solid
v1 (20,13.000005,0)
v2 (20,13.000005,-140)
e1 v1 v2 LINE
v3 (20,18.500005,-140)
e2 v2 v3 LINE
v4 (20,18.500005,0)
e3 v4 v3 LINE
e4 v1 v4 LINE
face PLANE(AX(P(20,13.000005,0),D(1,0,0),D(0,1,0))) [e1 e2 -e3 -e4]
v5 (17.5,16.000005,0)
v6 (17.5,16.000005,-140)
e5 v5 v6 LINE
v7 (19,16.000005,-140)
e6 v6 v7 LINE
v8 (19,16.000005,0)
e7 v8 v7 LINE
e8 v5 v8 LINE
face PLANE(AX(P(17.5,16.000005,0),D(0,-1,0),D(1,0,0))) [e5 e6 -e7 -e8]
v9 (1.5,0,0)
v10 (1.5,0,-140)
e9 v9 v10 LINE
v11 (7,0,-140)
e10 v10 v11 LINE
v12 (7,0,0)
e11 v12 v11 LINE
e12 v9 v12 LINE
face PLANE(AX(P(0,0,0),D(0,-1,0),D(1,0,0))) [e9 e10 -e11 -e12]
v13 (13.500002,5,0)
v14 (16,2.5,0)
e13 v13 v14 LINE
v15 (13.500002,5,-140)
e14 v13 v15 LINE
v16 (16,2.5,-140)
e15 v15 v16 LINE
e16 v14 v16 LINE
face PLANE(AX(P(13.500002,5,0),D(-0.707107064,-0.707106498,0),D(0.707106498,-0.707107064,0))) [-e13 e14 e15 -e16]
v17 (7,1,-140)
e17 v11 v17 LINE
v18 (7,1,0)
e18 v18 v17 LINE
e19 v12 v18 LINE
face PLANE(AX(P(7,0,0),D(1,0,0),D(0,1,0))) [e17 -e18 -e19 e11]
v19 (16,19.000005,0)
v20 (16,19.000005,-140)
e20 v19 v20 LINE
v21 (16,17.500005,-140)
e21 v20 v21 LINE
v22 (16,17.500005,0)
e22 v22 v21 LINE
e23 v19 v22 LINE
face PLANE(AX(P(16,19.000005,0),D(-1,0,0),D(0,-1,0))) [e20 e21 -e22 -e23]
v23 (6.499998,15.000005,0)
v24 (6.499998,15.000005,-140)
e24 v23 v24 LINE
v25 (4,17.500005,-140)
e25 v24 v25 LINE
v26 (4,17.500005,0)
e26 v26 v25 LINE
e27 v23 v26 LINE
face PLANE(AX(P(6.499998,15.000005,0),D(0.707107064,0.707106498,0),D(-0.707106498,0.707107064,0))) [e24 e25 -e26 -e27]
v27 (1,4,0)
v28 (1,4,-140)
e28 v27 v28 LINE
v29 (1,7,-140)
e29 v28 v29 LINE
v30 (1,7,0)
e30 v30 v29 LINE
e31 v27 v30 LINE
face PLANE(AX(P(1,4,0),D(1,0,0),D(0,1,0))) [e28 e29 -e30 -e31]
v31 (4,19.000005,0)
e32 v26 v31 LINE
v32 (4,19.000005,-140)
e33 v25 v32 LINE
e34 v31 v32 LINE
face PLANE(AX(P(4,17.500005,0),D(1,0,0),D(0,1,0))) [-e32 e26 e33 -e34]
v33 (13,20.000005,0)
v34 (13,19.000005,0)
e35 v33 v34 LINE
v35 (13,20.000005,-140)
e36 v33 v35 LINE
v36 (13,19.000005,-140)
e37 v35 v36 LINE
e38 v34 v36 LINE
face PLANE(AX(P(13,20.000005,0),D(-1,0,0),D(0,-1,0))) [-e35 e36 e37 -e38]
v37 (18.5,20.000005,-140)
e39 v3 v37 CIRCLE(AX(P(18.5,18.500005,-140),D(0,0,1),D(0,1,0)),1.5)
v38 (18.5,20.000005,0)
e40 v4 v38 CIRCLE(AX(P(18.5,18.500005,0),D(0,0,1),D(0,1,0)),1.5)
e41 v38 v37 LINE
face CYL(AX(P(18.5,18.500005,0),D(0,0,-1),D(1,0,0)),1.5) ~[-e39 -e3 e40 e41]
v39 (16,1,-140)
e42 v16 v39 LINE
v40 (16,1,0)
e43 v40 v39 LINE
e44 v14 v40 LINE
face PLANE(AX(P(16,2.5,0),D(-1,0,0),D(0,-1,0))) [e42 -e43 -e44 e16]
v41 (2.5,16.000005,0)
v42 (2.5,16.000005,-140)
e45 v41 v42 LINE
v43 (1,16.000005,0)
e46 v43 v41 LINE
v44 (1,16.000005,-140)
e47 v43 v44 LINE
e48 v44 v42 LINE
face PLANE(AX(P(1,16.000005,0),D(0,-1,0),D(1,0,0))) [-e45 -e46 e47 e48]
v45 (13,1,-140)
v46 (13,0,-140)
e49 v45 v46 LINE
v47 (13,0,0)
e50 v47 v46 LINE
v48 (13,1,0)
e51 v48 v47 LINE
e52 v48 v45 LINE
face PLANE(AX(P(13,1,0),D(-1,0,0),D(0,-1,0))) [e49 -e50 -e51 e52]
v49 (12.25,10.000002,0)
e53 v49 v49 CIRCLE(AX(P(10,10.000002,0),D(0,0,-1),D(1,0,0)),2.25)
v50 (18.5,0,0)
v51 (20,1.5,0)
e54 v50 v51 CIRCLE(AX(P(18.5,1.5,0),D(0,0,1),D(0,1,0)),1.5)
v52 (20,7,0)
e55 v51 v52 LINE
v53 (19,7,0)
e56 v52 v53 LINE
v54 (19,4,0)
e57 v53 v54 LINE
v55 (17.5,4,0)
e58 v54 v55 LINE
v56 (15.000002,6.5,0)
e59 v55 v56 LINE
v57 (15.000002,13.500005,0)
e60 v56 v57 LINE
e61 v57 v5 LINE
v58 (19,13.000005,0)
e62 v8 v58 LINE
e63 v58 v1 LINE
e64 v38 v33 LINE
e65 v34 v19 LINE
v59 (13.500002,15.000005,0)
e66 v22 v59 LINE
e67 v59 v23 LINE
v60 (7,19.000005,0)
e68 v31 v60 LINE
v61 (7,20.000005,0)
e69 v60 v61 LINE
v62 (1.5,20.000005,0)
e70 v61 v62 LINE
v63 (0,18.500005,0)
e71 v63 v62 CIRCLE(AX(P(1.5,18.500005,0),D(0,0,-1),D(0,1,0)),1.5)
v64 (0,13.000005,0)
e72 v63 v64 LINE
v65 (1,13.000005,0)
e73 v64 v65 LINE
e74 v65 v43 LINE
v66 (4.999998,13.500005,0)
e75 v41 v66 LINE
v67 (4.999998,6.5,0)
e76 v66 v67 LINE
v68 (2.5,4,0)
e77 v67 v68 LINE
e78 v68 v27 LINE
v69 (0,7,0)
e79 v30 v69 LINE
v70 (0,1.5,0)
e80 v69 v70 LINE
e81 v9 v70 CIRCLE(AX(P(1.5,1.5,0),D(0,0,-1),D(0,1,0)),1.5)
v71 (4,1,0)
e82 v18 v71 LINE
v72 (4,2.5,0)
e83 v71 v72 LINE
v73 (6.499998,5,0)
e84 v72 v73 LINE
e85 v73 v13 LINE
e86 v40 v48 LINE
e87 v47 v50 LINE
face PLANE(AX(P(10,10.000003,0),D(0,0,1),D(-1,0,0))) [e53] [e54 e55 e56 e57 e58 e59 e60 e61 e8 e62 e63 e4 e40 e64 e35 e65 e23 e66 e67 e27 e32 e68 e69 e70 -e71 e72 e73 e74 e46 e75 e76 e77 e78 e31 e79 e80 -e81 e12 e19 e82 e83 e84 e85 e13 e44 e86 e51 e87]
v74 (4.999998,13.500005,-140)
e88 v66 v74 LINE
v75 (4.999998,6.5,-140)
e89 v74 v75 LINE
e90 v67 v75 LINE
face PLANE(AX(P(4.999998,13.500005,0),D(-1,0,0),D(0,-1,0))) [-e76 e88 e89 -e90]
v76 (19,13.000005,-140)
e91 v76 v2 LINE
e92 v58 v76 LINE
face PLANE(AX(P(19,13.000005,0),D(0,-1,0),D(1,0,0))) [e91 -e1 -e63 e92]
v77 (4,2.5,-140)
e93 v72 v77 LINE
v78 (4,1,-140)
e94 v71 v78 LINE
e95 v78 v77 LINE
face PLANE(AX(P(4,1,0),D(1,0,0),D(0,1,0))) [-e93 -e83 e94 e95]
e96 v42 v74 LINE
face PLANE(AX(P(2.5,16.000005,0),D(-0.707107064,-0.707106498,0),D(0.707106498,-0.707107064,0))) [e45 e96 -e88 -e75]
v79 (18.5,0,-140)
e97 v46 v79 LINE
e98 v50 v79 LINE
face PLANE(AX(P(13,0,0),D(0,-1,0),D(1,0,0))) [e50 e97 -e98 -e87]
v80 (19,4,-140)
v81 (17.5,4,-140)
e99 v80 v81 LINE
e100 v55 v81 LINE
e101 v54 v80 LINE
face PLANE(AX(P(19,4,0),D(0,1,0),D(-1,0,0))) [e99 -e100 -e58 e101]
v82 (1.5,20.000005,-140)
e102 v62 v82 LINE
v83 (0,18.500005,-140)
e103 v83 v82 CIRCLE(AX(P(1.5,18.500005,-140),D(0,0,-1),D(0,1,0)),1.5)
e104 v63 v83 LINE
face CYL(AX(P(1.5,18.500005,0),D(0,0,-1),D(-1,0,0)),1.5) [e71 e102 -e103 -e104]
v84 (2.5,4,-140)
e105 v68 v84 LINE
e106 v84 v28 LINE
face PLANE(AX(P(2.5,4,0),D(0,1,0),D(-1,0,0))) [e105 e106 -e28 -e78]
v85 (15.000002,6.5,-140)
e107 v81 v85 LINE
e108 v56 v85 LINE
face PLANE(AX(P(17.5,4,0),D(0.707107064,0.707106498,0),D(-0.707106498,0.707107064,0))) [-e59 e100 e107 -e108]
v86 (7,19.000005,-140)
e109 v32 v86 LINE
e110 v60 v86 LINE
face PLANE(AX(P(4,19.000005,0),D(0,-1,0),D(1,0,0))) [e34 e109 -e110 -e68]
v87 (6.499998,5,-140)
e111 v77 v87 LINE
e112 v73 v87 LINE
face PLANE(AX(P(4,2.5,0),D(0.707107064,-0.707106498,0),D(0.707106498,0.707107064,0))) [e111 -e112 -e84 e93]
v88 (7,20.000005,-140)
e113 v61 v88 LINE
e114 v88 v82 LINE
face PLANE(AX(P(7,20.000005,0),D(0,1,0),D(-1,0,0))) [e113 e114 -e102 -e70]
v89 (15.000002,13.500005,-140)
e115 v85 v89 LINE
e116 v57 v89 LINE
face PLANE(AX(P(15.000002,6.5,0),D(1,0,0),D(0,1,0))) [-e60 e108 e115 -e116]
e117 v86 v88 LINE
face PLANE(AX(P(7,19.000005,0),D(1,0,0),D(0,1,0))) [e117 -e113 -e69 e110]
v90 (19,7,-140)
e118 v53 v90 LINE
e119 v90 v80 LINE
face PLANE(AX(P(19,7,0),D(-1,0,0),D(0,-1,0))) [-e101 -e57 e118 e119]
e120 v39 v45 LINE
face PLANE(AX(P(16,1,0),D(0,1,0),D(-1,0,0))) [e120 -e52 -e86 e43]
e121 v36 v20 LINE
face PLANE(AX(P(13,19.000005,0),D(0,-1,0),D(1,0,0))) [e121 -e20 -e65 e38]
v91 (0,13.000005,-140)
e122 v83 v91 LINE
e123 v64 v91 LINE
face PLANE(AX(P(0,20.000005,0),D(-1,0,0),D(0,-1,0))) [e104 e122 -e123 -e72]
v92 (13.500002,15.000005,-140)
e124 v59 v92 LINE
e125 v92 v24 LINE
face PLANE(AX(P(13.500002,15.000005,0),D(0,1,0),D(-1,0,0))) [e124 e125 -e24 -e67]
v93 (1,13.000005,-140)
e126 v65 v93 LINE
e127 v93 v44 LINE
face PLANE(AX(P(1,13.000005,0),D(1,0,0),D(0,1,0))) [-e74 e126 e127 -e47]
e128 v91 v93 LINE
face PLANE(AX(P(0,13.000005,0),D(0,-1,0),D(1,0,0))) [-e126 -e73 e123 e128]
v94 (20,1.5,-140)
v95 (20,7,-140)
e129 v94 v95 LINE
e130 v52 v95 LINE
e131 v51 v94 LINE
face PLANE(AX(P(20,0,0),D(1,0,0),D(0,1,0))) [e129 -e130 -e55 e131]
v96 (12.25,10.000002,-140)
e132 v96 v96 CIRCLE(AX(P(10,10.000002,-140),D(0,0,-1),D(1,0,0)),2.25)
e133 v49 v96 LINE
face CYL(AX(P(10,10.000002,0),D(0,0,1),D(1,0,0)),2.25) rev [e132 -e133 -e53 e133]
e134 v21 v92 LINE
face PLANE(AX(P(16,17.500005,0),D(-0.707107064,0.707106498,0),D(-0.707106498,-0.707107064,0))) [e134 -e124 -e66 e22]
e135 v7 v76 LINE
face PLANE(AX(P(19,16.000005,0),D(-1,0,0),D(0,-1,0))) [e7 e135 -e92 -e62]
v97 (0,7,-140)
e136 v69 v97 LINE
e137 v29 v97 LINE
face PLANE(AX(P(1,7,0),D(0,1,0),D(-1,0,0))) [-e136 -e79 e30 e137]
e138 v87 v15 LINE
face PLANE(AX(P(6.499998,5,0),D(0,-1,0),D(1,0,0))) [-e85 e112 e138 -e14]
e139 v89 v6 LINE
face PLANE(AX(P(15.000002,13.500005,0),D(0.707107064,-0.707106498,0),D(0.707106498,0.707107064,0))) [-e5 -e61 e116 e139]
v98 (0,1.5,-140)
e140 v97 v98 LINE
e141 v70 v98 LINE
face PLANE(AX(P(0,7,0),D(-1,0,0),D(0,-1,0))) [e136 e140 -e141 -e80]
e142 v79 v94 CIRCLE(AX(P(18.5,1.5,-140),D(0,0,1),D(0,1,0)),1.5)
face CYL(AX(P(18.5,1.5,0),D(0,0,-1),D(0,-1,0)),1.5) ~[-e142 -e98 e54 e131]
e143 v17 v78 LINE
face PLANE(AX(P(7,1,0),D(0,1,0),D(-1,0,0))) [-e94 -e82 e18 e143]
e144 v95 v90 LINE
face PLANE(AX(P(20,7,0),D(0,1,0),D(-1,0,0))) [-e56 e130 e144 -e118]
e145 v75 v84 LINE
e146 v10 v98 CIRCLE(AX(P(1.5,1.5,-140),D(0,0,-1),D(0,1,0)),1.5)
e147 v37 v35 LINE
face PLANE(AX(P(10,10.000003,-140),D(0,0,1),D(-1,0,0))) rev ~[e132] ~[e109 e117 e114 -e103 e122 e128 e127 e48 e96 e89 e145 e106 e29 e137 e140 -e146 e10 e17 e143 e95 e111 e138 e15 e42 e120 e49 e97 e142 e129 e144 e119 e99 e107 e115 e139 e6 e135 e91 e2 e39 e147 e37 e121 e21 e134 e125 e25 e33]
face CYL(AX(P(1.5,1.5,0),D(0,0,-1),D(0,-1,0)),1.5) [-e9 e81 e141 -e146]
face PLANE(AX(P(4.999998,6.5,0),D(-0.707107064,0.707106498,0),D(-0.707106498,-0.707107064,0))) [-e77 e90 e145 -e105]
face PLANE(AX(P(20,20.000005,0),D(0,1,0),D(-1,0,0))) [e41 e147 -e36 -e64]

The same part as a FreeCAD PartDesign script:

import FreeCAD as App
import Part
import Sketcher
from FreeCAD import Vector


def edges_at(feature, points):
    """Names of the edges that pass closest to the given points."""
    edges = feature.Shape.Edges
    near = lambda p: min(range(len(edges)), key=lambda i: edges[i].distToShape(Part.Vertex(*p))[0])
    return sorted({f"Edge{near(p) + 1}" for p in points})

doc = App.newDocument("Part")
body = doc.addObject("PartDesign::Body", "Body")

sketch1 = body.newObject("Sketcher::SketchObject", "Sketch")
sketch1.AttachmentSupport = (doc.getObject("XY_Plane"), [""])
sketch1.MapMode = "FlatFace"
sketch1.addGeometry(Part.LineSegment(Vector(7, 1, 0), Vector(7, 0, 0)), False)
sketch1.addGeometry(Part.LineSegment(Vector(7, 0, 0), Vector(0, 0, 0)), False)
sketch1.addGeometry(Part.LineSegment(Vector(0, 0, 0), Vector(0, 7, 0)), False)
sketch1.addGeometry(Part.LineSegment(Vector(0, 7, 0), Vector(1, 7, 0)), False)
sketch1.addGeometry(Part.LineSegment(Vector(1, 7, 0), Vector(1, 4, 0)), False)
sketch1.addGeometry(Part.LineSegment(Vector(1, 4, 0), Vector(2.5, 4, 0)), False)
sketch1.addGeometry(Part.LineSegment(Vector(2.5, 4, 0), Vector(5, 6.5, 0)), False)
sketch1.addGeometry(Part.LineSegment(Vector(5, 6.5, 0), Vector(5, 13.5, 0)), False)
sketch1.addGeometry(Part.LineSegment(Vector(5, 13.5, 0), Vector(2.5, 16, 0)), False)
sketch1.addGeometry(Part.LineSegment(Vector(2.5, 16, 0), Vector(1, 16, 0)), False)
sketch1.addGeometry(Part.LineSegment(Vector(1, 16, 0), Vector(1, 13, 0)), False)
sketch1.addGeometry(Part.LineSegment(Vector(1, 13, 0), Vector(0, 13, 0)), False)
sketch1.addGeometry(Part.LineSegment(Vector(0, 13, 0), Vector(0, 20, 0)), False)
sketch1.addGeometry(Part.LineSegment(Vector(0, 20, 0), Vector(7, 20, 0)), False)
sketch1.addGeometry(Part.LineSegment(Vector(7, 20, 0), Vector(7, 19, 0)), False)
sketch1.addGeometry(Part.LineSegment(Vector(7, 19, 0), Vector(4, 19, 0)), False)
sketch1.addGeometry(Part.LineSegment(Vector(4, 19, 0), Vector(4, 17.5, 0)), False)
sketch1.addGeometry(Part.LineSegment(Vector(4, 17.5, 0), Vector(6.5, 15, 0)), False)
sketch1.addGeometry(Part.LineSegment(Vector(6.5, 15, 0), Vector(13.5, 15, 0)), False)
sketch1.addGeometry(Part.LineSegment(Vector(13.5, 15, 0), Vector(16, 17.5, 0)), False)
sketch1.addGeometry(Part.LineSegment(Vector(16, 17.5, 0), Vector(16, 19, 0)), False)
sketch1.addGeometry(Part.LineSegment(Vector(16, 19, 0), Vector(13, 19, 0)), False)
sketch1.addGeometry(Part.LineSegment(Vector(13, 19, 0), Vector(13, 20, 0)), False)
sketch1.addGeometry(Part.LineSegment(Vector(13, 20, 0), Vector(20, 20, 0)), False)
sketch1.addGeometry(Part.LineSegment(Vector(20, 20, 0), Vector(20, 13, 0)), False)
sketch1.addGeometry(Part.LineSegment(Vector(20, 13, 0), Vector(19, 13, 0)), False)
sketch1.addGeometry(Part.LineSegment(Vector(19, 13, 0), Vector(19, 16, 0)), False)
sketch1.addGeometry(Part.LineSegment(Vector(19, 16, 0), Vector(17.5, 16, 0)), False)
sketch1.addGeometry(Part.LineSegment(Vector(17.5, 16, 0), Vector(15, 13.5, 0)), False)
sketch1.addGeometry(Part.LineSegment(Vector(15, 13.5, 0), Vector(15, 6.5, 0)), False)
sketch1.addGeometry(Part.LineSegment(Vector(15, 6.5, 0), Vector(17.5, 4, 0)), False)
sketch1.addGeometry(Part.LineSegment(Vector(17.5, 4, 0), Vector(19, 4, 0)), False)
sketch1.addGeometry(Part.LineSegment(Vector(19, 4, 0), Vector(19, 7, 0)), False)
sketch1.addGeometry(Part.LineSegment(Vector(19, 7, 0), Vector(20, 7, 0)), False)
sketch1.addGeometry(Part.LineSegment(Vector(20, 7, 0), Vector(20, 0, 0)), False)
sketch1.addGeometry(Part.LineSegment(Vector(20, 0, 0), Vector(13, 0, 0)), False)
sketch1.addGeometry(Part.LineSegment(Vector(13, 0, 0), Vector(13, 1, 0)), False)
sketch1.addGeometry(Part.LineSegment(Vector(13, 1, 0), Vector(16, 1, 0)), False)
sketch1.addGeometry(Part.LineSegment(Vector(16, 1, 0), Vector(16, 2.5, 0)), False)
sketch1.addGeometry(Part.LineSegment(Vector(16, 2.5, 0), Vector(13.5, 5, 0)), False)
sketch1.addGeometry(Part.LineSegment(Vector(13.5, 5, 0), Vector(6.5, 5, 0)), False)
sketch1.addGeometry(Part.LineSegment(Vector(6.5, 5, 0), Vector(4, 2.5, 0)), False)
sketch1.addGeometry(Part.LineSegment(Vector(4, 2.5, 0), Vector(4, 1, 0)), False)
sketch1.addGeometry(Part.LineSegment(Vector(4, 1, 0), Vector(7, 1, 0)), False)
sketch1.addGeometry(Part.Circle(Vector(10, 10, 0), Vector(0, 0, 1), 2.2), False)
sketch1.addConstraint(Sketcher.Constraint("Coincident", 0, 2, 1, 1))
sketch1.addConstraint(Sketcher.Constraint("Coincident", 1, 2, 2, 1))
sketch1.addConstraint(Sketcher.Constraint("Coincident", 2, 2, 3, 1))
sketch1.addConstraint(Sketcher.Constraint("Coincident", 3, 2, 4, 1))
sketch1.addConstraint(Sketcher.Constraint("Coincident", 4, 2, 5, 1))
sketch1.addConstraint(Sketcher.Constraint("Coincident", 5, 2, 6, 1))
sketch1.addConstraint(Sketcher.Constraint("Coincident", 6, 2, 7, 1))
sketch1.addConstraint(Sketcher.Constraint("Coincident", 7, 2, 8, 1))
sketch1.addConstraint(Sketcher.Constraint("Coincident", 8, 2, 9, 1))
sketch1.addConstraint(Sketcher.Constraint("Coincident", 9, 2, 10, 1))
sketch1.addConstraint(Sketcher.Constraint("Coincident", 10, 2, 11, 1))
sketch1.addConstraint(Sketcher.Constraint("Coincident", 11, 2, 12, 1))
sketch1.addConstraint(Sketcher.Constraint("Coincident", 12, 2, 13, 1))
sketch1.addConstraint(Sketcher.Constraint("Coincident", 13, 2, 14, 1))
sketch1.addConstraint(Sketcher.Constraint("Coincident", 14, 2, 15, 1))
sketch1.addConstraint(Sketcher.Constraint("Coincident", 15, 2, 16, 1))
sketch1.addConstraint(Sketcher.Constraint("Coincident", 16, 2, 17, 1))
sketch1.addConstraint(Sketcher.Constraint("Coincident", 17, 2, 18, 1))
sketch1.addConstraint(Sketcher.Constraint("Coincident", 18, 2, 19, 1))
sketch1.addConstraint(Sketcher.Constraint("Coincident", 19, 2, 20, 1))
sketch1.addConstraint(Sketcher.Constraint("Coincident", 20, 2, 21, 1))
sketch1.addConstraint(Sketcher.Constraint("Coincident", 21, 2, 22, 1))
sketch1.addConstraint(Sketcher.Constraint("Coincident", 22, 2, 23, 1))
sketch1.addConstraint(Sketcher.Constraint("Coincident", 23, 2, 24, 1))
sketch1.addConstraint(Sketcher.Constraint("Coincident", 24, 2, 25, 1))
sketch1.addConstraint(Sketcher.Constraint("Coincident", 25, 2, 26, 1))
sketch1.addConstraint(Sketcher.Constraint("Coincident", 26, 2, 27, 1))
sketch1.addConstraint(Sketcher.Constraint("Coincident", 27, 2, 28, 1))
sketch1.addConstraint(Sketcher.Constraint("Coincident", 28, 2, 29, 1))
sketch1.addConstraint(Sketcher.Constraint("Coincident", 29, 2, 30, 1))
sketch1.addConstraint(Sketcher.Constraint("Coincident", 30, 2, 31, 1))
sketch1.addConstraint(Sketcher.Constraint("Coincident", 31, 2, 32, 1))
sketch1.addConstraint(Sketcher.Constraint("Coincident", 32, 2, 33, 1))
sketch1.addConstraint(Sketcher.Constraint("Coincident", 33, 2, 34, 1))
sketch1.addConstraint(Sketcher.Constraint("Coincident", 34, 2, 35, 1))
sketch1.addConstraint(Sketcher.Constraint("Coincident", 35, 2, 36, 1))
sketch1.addConstraint(Sketcher.Constraint("Coincident", 36, 2, 37, 1))
sketch1.addConstraint(Sketcher.Constraint("Coincident", 37, 2, 38, 1))
sketch1.addConstraint(Sketcher.Constraint("Coincident", 38, 2, 39, 1))
sketch1.addConstraint(Sketcher.Constraint("Coincident", 39, 2, 40, 1))
sketch1.addConstraint(Sketcher.Constraint("Coincident", 40, 2, 41, 1))
sketch1.addConstraint(Sketcher.Constraint("Coincident", 41, 2, 42, 1))
sketch1.addConstraint(Sketcher.Constraint("Coincident", 42, 2, 43, 1))
sketch1.addConstraint(Sketcher.Constraint("Coincident", 43, 2, 0, 1))
sketch1.addConstraint(Sketcher.Constraint("Vertical", 0))
sketch1.addConstraint(Sketcher.Constraint("Horizontal", 1))
sketch1.addConstraint(Sketcher.Constraint("Vertical", 2))
sketch1.addConstraint(Sketcher.Constraint("Horizontal", 3))
sketch1.addConstraint(Sketcher.Constraint("Vertical", 4))
sketch1.addConstraint(Sketcher.Constraint("Horizontal", 5))
sketch1.addConstraint(Sketcher.Constraint("Vertical", 7))
sketch1.addConstraint(Sketcher.Constraint("Horizontal", 9))
sketch1.addConstraint(Sketcher.Constraint("Vertical", 10))
sketch1.addConstraint(Sketcher.Constraint("Horizontal", 11))
sketch1.addConstraint(Sketcher.Constraint("Vertical", 12))
sketch1.addConstraint(Sketcher.Constraint("Horizontal", 13))
sketch1.addConstraint(Sketcher.Constraint("Vertical", 14))
sketch1.addConstraint(Sketcher.Constraint("Horizontal", 15))
sketch1.addConstraint(Sketcher.Constraint("Vertical", 16))
sketch1.addConstraint(Sketcher.Constraint("Horizontal", 18))
sketch1.addConstraint(Sketcher.Constraint("Vertical", 20))
sketch1.addConstraint(Sketcher.Constraint("Horizontal", 21))
sketch1.addConstraint(Sketcher.Constraint("Vertical", 22))
sketch1.addConstraint(Sketcher.Constraint("Horizontal", 23))
sketch1.addConstraint(Sketcher.Constraint("Vertical", 24))
sketch1.addConstraint(Sketcher.Constraint("Horizontal", 25))
sketch1.addConstraint(Sketcher.Constraint("Vertical", 26))
sketch1.addConstraint(Sketcher.Constraint("Horizontal", 27))
sketch1.addConstraint(Sketcher.Constraint("Vertical", 29))
sketch1.addConstraint(Sketcher.Constraint("Horizontal", 31))
sketch1.addConstraint(Sketcher.Constraint("Vertical", 32))
sketch1.addConstraint(Sketcher.Constraint("Horizontal", 33))
sketch1.addConstraint(Sketcher.Constraint("Vertical", 34))
sketch1.addConstraint(Sketcher.Constraint("Horizontal", 35))
sketch1.addConstraint(Sketcher.Constraint("Vertical", 36))
sketch1.addConstraint(Sketcher.Constraint("Horizontal", 37))
sketch1.addConstraint(Sketcher.Constraint("Vertical", 38))
sketch1.addConstraint(Sketcher.Constraint("Horizontal", 40))
sketch1.addConstraint(Sketcher.Constraint("Vertical", 42))
sketch1.addConstraint(Sketcher.Constraint("Horizontal", 43))
sketch1.addConstraint(Sketcher.Constraint("Coincident", 1, 2, -1, 1))
sketch1.addConstraint(Sketcher.Constraint("PointOnObject", 11, 2, -2))
sketch1.addConstraint(Sketcher.Constraint("PointOnObject", 34, 2, -1))
sketch1.addConstraint(Sketcher.Constraint("Perpendicular", 6, 8))
sketch1.addConstraint(Sketcher.Constraint("Parallel", 8, 17))
sketch1.addConstraint(Sketcher.Constraint("Perpendicular", 17, 19))
sketch1.addConstraint(Sketcher.Constraint("Parallel", 19, 28))
sketch1.addConstraint(Sketcher.Constraint("Perpendicular", 28, 30))
sketch1.addConstraint(Sketcher.Constraint("Parallel", 30, 39))
sketch1.addConstraint(Sketcher.Constraint("Perpendicular", 39, 41))
sketch1.addConstraint(Sketcher.Constraint("Horizontal", 16, 2, 19, 2))
sketch1.addConstraint(Sketcher.Constraint("Horizontal", 15, 2, 20, 2))
sketch1.addConstraint(Sketcher.Constraint("Horizontal", 13, 2, 22, 2))
sketch1.addConstraint(Sketcher.Constraint("Horizontal", 11, 2, 24, 2))
sketch1.addConstraint(Sketcher.Constraint("Horizontal", 9, 2, 26, 2))
sketch1.addConstraint(Sketcher.Constraint("Horizontal", 7, 2, 28, 2))
sketch1.addConstraint(Sketcher.Constraint("Horizontal", 6, 2, 29, 2))
sketch1.addConstraint(Sketcher.Constraint("Horizontal", 5, 2, 30, 2))
sketch1.addConstraint(Sketcher.Constraint("Horizontal", 3, 2, 32, 2))
sketch1.addConstraint(Sketcher.Constraint("Horizontal", 38, 2, 41, 2))
sketch1.addConstraint(Sketcher.Constraint("Horizontal", 37, 2, 42, 2))
sketch1.addConstraint(Sketcher.Constraint("Vertical", 5, 2, 8, 2))
sketch1.addConstraint(Sketcher.Constraint("Vertical", 4, 2, 9, 2))
sketch1.addConstraint(Sketcher.Constraint("Vertical", 0, 2, 13, 2))
sketch1.addConstraint(Sketcher.Constraint("Vertical", 27, 2, 30, 2))
sketch1.addConstraint(Sketcher.Constraint("Vertical", 26, 2, 31, 2))
sketch1.addConstraint(Sketcher.Constraint("Vertical", 24, 2, 33, 2))
sketch1.addConstraint(Sketcher.Constraint("Vertical", 22, 2, 35, 2))
sketch1.addConstraint(Sketcher.Constraint("Vertical", 20, 2, 37, 2))
sketch1.addConstraint(Sketcher.Constraint("Vertical", 18, 2, 39, 2))
sketch1.addConstraint(Sketcher.Constraint("Vertical", 17, 2, 40, 2))
sketch1.addConstraint(Sketcher.Constraint("Equal", 15, 21))
sketch1.addConstraint(Sketcher.Constraint("Equal", 13, 23))
sketch1.addConstraint(Sketcher.Constraint("Equal", 11, 25))
sketch1.addConstraint(Sketcher.Constraint("Equal", 9, 27))
sketch1.addConstraint(Sketcher.Constraint("Equal", 33, 0))
sketch1.addConstraint(Sketcher.Constraint("Equal", 35, 2))
sketch1.addConstraint(Sketcher.Constraint("Equal", 43, 4))
sketch1.addConstraint(Sketcher.Constraint("Equal", 40, 7))
sketch1.addConstraint(Sketcher.Constraint("Equal", 4, 10))
sketch1.addConstraint(Sketcher.Constraint("Equal", 2, 12))
sketch1.addConstraint(Sketcher.Constraint("Equal", 0, 14))
sketch1.addConstraint(Sketcher.Constraint("Equal", 31, 16))
sketch1.addConstraint(Sketcher.Constraint("Equal", 20, 38))
sketch1.addConstraint(Sketcher.Constraint("Equal", 8, 17))
sketch1.addConstraint(Sketcher.Constraint("Diameter", 44, 4.5))
sketch1.addConstraint(Sketcher.Constraint("DistanceX", 1, 2, 1, 1, 7.0))
sketch1.addConstraint(Sketcher.Constraint("DistanceX", 3, 1, 3, 2, 1.0))
sketch1.addConstraint(Sketcher.Constraint("DistanceX", 15, 2, 15, 1, 3.0))
sketch1.addConstraint(Sketcher.Constraint("DistanceX", 5, 1, 5, 2, 1.5))
sketch1.addConstraint(Sketcher.Constraint("DistanceX", -1, 1, 44, 3, 10.0))
sketch1.addConstraint(Sketcher.Constraint("DistanceX", -1, 1, 19, 2, 16.0))
sketch1.addConstraint(Sketcher.Constraint("DistanceY", -1, 1, 39, 2, 5.0))
sketch1.addConstraint(Sketcher.Constraint("DistanceY", -1, 1, 44, 3, 10.000002))
pad1 = body.newObject("PartDesign::Pad", "Pad")
pad1.Profile = sketch1
pad1.Length = 140
pad1.Reversed = True
doc.recompute()

fillet = body.newObject("PartDesign::Fillet", "Fillet")
fillet.Base = (pad1, edges_at(pad1, [
    (20, 20, -70),
    (20, 0, -70),
    (0, 20, -70),
    (0, 0, -70),
]))
fillet.Radius = 1.5

doc.recompute()
